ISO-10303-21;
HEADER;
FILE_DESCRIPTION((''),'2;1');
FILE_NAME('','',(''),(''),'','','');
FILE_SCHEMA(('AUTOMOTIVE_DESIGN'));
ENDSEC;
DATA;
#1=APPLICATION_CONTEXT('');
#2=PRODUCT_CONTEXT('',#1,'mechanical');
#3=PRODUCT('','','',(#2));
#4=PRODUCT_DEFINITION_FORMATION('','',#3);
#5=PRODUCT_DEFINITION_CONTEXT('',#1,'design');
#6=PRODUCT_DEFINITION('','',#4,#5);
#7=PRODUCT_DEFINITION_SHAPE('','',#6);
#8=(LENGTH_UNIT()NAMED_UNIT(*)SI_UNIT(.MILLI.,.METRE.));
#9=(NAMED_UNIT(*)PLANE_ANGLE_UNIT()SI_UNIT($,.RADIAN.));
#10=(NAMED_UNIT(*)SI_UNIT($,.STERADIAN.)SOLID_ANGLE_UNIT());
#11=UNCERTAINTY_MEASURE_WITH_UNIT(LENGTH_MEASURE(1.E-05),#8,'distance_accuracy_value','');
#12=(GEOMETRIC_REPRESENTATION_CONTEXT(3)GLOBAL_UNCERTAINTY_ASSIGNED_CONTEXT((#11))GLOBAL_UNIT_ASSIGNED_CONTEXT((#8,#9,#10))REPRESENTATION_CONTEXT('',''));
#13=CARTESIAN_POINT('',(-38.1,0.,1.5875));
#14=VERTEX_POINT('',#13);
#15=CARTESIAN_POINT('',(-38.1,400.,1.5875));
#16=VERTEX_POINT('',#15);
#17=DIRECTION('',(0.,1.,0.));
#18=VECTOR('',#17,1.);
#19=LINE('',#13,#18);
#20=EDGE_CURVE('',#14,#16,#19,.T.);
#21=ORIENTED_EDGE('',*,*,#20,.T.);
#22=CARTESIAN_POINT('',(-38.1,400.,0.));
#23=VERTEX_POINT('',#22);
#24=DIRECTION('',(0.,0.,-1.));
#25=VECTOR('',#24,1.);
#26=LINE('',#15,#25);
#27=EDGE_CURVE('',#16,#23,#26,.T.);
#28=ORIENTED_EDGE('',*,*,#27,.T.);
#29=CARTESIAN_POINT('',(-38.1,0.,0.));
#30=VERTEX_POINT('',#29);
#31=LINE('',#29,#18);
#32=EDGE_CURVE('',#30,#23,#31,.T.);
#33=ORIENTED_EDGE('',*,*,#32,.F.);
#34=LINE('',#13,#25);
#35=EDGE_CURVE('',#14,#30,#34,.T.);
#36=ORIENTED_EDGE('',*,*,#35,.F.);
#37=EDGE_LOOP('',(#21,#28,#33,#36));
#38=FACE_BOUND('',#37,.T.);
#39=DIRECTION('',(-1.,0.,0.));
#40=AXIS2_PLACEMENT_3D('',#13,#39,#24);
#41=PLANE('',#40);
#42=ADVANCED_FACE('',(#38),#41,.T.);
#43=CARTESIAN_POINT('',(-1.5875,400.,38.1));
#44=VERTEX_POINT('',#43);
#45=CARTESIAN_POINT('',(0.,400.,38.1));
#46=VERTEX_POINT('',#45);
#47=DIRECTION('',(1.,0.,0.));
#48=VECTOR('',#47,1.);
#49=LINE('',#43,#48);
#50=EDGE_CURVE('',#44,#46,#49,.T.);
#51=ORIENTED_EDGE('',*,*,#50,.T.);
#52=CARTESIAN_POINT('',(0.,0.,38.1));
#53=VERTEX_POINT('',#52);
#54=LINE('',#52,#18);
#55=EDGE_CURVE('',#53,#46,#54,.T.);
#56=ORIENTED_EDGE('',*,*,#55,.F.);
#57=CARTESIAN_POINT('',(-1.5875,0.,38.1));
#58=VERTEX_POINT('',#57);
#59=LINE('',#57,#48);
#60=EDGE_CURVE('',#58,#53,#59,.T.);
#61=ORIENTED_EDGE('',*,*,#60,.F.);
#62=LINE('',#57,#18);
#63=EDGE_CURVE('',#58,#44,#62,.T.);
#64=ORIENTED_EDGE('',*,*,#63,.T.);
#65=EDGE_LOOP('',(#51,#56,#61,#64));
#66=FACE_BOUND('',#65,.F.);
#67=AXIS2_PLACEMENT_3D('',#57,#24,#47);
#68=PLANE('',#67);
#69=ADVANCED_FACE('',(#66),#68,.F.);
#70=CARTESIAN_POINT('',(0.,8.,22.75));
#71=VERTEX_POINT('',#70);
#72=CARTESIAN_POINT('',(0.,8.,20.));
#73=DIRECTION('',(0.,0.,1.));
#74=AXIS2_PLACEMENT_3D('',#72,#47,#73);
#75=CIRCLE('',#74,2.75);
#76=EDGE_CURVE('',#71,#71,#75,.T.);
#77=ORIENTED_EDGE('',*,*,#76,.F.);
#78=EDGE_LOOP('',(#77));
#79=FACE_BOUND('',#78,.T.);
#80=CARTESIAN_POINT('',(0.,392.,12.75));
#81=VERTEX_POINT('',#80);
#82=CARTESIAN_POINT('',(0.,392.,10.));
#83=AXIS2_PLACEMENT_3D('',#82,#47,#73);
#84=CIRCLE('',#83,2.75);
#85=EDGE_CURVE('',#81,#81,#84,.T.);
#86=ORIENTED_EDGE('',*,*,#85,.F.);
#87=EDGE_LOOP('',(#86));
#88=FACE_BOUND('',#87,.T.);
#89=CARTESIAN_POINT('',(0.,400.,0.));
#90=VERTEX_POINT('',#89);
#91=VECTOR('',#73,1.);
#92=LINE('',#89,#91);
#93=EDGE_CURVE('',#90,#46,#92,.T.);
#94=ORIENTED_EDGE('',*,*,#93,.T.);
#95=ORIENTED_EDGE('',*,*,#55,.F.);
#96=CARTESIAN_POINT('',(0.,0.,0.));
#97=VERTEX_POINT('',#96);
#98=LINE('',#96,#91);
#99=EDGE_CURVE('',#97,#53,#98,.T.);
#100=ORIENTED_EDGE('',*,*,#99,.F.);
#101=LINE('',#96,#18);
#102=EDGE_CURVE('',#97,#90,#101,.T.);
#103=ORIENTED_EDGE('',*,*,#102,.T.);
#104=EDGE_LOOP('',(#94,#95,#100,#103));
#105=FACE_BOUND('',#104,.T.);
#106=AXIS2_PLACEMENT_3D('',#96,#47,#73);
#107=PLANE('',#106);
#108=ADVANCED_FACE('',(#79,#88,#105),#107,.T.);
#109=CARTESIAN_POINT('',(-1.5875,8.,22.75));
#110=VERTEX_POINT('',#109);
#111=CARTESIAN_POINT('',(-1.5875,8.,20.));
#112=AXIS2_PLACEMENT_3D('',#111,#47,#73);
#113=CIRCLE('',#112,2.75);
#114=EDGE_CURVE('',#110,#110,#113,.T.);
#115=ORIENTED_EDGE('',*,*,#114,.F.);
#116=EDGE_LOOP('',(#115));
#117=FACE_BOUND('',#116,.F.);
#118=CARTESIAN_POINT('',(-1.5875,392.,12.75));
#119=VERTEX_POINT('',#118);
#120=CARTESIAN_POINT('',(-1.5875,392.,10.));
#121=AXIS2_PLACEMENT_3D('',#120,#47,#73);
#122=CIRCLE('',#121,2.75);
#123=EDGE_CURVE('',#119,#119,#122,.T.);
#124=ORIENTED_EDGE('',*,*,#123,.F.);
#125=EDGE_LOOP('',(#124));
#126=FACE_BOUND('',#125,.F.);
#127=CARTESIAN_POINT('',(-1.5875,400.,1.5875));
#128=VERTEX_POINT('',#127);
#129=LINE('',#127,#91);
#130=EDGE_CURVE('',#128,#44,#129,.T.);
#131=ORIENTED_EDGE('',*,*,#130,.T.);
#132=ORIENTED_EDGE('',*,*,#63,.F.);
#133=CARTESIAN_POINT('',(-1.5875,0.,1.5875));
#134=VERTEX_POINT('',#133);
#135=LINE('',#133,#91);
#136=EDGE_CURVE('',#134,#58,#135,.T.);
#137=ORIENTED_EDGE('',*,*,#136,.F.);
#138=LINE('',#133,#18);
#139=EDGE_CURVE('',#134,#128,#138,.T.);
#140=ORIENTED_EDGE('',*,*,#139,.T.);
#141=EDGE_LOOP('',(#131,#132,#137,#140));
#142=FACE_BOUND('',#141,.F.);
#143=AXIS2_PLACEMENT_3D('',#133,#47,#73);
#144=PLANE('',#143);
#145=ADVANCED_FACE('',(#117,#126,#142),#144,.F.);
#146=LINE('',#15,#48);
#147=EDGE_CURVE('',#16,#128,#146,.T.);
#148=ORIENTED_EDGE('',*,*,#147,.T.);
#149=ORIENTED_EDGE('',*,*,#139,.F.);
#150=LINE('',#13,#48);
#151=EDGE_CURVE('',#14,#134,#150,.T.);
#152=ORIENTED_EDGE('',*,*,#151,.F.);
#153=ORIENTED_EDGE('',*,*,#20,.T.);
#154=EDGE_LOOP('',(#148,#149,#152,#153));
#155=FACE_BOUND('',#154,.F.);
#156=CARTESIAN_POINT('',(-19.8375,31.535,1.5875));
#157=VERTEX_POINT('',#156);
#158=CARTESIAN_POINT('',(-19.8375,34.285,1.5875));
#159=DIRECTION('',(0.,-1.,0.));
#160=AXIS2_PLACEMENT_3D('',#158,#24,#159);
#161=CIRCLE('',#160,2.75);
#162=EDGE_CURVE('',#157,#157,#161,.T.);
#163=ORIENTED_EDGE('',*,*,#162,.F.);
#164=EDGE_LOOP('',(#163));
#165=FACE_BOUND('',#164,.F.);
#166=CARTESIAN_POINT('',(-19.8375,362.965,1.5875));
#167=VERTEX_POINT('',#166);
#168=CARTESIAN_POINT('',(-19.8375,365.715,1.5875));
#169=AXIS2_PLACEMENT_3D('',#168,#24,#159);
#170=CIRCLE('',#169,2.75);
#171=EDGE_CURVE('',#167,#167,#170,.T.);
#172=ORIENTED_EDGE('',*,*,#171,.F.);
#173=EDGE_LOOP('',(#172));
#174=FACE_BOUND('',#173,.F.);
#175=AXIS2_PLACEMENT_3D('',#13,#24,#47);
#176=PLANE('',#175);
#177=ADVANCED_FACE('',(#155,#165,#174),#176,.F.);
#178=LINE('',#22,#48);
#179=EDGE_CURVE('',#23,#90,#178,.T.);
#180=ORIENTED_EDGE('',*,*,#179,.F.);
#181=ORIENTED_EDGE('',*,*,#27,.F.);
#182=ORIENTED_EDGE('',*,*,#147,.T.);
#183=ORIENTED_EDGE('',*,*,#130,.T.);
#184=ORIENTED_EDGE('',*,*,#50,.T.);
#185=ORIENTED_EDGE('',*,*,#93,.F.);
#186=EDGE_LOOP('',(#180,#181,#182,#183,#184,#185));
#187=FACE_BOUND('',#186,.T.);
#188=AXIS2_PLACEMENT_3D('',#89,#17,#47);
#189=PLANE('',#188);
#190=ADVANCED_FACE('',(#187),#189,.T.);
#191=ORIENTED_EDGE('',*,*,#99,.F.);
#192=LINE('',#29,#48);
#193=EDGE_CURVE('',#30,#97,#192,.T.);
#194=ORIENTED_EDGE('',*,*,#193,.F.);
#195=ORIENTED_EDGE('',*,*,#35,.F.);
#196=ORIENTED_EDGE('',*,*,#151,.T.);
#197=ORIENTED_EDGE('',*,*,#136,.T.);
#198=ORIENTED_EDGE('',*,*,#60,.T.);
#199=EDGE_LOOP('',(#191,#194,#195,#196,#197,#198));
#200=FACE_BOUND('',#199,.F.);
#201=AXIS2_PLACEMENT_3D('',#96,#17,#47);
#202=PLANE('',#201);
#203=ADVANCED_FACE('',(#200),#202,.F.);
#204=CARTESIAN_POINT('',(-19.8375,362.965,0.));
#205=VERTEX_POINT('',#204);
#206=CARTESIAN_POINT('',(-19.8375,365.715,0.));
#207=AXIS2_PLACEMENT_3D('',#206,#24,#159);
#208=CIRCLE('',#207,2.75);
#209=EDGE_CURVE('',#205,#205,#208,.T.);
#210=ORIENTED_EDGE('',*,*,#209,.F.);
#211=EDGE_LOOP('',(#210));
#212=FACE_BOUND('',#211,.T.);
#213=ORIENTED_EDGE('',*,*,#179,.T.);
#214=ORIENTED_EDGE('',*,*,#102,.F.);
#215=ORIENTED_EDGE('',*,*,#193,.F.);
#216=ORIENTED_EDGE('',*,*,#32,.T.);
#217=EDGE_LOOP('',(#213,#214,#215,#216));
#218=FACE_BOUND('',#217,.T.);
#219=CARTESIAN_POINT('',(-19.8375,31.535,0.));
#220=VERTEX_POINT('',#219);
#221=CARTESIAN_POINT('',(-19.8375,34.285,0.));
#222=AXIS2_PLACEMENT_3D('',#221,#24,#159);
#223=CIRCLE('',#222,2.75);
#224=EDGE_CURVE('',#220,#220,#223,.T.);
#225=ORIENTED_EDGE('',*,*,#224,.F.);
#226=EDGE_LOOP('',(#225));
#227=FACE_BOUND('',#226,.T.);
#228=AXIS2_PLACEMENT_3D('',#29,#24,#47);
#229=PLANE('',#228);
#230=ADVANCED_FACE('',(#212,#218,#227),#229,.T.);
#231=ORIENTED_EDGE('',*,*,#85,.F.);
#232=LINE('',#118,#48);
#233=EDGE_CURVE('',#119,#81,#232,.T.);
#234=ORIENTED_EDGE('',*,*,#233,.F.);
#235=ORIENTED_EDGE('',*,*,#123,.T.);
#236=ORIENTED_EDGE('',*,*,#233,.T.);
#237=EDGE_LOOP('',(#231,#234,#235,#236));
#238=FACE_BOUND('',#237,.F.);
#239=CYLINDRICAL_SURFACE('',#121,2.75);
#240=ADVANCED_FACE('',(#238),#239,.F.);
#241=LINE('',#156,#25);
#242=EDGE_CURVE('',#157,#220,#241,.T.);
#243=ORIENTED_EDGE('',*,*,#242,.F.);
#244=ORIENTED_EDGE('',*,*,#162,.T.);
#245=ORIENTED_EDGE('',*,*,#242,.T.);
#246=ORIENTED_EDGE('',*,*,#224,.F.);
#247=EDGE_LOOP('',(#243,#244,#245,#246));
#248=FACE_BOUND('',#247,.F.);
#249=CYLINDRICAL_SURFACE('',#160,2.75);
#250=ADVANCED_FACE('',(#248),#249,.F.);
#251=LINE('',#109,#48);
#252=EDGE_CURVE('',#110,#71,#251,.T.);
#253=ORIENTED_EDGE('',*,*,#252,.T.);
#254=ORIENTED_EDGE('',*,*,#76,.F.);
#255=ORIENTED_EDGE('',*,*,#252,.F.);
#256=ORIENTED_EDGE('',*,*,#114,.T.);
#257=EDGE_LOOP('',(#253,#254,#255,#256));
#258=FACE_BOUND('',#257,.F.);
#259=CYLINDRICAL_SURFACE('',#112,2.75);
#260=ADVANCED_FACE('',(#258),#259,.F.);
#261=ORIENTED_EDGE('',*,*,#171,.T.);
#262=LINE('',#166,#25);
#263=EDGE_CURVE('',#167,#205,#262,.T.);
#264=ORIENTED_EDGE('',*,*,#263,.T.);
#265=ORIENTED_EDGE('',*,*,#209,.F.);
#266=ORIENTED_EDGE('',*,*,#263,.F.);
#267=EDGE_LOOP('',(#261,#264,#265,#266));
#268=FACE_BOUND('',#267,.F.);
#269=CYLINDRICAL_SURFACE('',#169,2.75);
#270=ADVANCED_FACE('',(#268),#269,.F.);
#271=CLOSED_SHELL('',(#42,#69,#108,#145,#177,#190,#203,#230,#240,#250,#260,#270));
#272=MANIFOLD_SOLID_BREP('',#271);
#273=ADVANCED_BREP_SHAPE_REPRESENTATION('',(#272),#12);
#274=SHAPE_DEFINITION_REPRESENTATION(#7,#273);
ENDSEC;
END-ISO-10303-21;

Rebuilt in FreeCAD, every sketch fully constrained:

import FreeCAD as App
import Part
import Sketcher
Q = App.Units.Quantity


def add_polygon(sketch, points):
    """Adds a closed chain of lines whose ends are joined by coincident constraints."""
    first, n = sketch.GeometryCount, len(points)
    for a, b in zip(points, points[1:] + points[:1]):
        sketch.addGeometry(Part.LineSegment(App.Vector(*a, 0), App.Vector(*b, 0)), False)
    for i in range(n):
        sketch.addConstraint(Sketcher.Constraint("Coincident", first + i, 2, first + (i + 1) % n, 1))

doc = App.newDocument("Part")
body = doc.addObject("PartDesign::Body", "Body")

# Sketch on XZ plane
sketch1 = body.newObject("Sketcher::SketchObject", "Sketch")
sketch1.AttachmentSupport = (doc.getObject("XZ_Plane"), [""])
sketch1.MapMode = "FlatFace"
add_polygon(sketch1, [(0, 0), (-38.1, 0), (-38.1, 1.6), (-1.6, 1.6), (-1.6, 38.1), (0, 38.1)])  # lines 0-5
sketch1.addConstraint(Sketcher.Constraint("Horizontal", 0))
sketch1.addConstraint(Sketcher.Constraint("Vertical", 1))
sketch1.addConstraint(Sketcher.Constraint("Horizontal", 2))
sketch1.addConstraint(Sketcher.Constraint("Vertical", 3))
sketch1.addConstraint(Sketcher.Constraint("Horizontal", 4))
sketch1.addConstraint(Sketcher.Constraint("Vertical", 5))
sketch1.addConstraint(Sketcher.Constraint("Coincident", 5, 2, -1, 1))
sketch1.addConstraint(Sketcher.Constraint("Equal", 4, 1))
sketch1.addConstraint(Sketcher.Constraint("Equal", 2, 3))
sketch1.addConstraint(Sketcher.Constraint("DistanceX", 0, 2, 0, 1, Q("1.5 in")))
sketch1.addConstraint(Sketcher.Constraint("DistanceX", 4, 1, 4, 2, Q("0.0625 in")))
pad1 = body.newObject("PartDesign::Pad", "Pad")
pad1.Profile = sketch1
pad1.Length = 400
pad1.Reversed = True

# Sketch on YZ plane
sketch2 = body.newObject("Sketcher::SketchObject", "Sketch001")
sketch2.AttachmentSupport = (doc.getObject("YZ_Plane"), [""])
sketch2.MapMode = "FlatFace"
sketch2.AttachmentOffset = App.Placement(App.Vector(0, 0, -0.0625 * 25.4), App.Rotation())
sketch2.addGeometry(Part.Circle(App.Vector(8, 20, 0), App.Vector(0, 0, 1), 2.8), False)
sketch2.addGeometry(Part.Circle(App.Vector(392, 10, 0), App.Vector(0, 0, 1), 2.8), False)
sketch2.addConstraint(Sketcher.Constraint("Equal", 0, 1))
sketch2.addConstraint(Sketcher.Constraint("Diameter", 0, 5.5))
sketch2.addConstraint(Sketcher.Constraint("DistanceY", -1, 1, 0, 3, Q("0.7874 in")))
sketch2.addConstraint(Sketcher.Constraint("DistanceY", -1, 1, 1, 3, Q("0.3937 in")))
sketch2.addConstraint(Sketcher.Constraint("DistanceX", 0, 3, 1, 3, Q("15.1181 in")))
sketch2.addConstraint(Sketcher.Constraint("DistanceX", -1, 1, 0, 3, 8.0))
doc.recompute()
hole = body.newObject("PartDesign::Hole", "Hole")
hole.Profile = sketch2
hole.ThreadType = "None"
hole.Diameter = 5.5
hole.DepthType = "Dimension"
hole.Depth = Q("0.2755906 in")
hole.DrillPoint = "Angled"
hole.DrillPointAngle = 118
hole.Reversed = True

# Sketch on XY plane
sketch3 = body.newObject("Sketcher::SketchObject", "Sketch002")
sketch3.AttachmentSupport = (doc.getObject("XY_Plane"), [""])
sketch3.MapMode = "FlatFace"
sketch3.AttachmentOffset = App.Placement(App.Vector(0, 0, 0.0625 * 25.4), App.Rotation())
sketch3.addGeometry(Part.Circle(App.Vector(-19.8, 34.3, 0), App.Vector(0, 0, 1), 2.8), False)
sketch3.addGeometry(Part.Circle(App.Vector(-19.8, 365.7, 0), App.Vector(0, 0, 1), 2.8), False)
sketch3.addConstraint(Sketcher.Constraint("Equal", 0, 1))
sketch3.addConstraint(Sketcher.Constraint("Vertical", 0, 3, 1, 3))
sketch3.addConstraint(Sketcher.Constraint("Diameter", 0, 5.5))
sketch3.addConstraint(Sketcher.Constraint("DistanceX", 0, 3, -1, 1, Q("0.781 in")))
sketch3.addConstraint(Sketcher.Constraint("DistanceY", -1, 1, 0, 3, Q("1.3498 in")))
sketch3.addConstraint(Sketcher.Constraint("DistanceY", -1, 1, 1, 3, 365.715))
doc.recompute()
hole2 = body.newObject("PartDesign::Hole", "Hole001")
hole2.Profile = sketch3
hole2.ThreadType = "None"
hole2.Diameter = 5.5
hole2.DepthType = "Dimension"
hole2.Depth = Q("0.2755906 in")
hole2.DrillPoint = "Angled"
hole2.DrillPointAngle = 118

doc.recompute()
